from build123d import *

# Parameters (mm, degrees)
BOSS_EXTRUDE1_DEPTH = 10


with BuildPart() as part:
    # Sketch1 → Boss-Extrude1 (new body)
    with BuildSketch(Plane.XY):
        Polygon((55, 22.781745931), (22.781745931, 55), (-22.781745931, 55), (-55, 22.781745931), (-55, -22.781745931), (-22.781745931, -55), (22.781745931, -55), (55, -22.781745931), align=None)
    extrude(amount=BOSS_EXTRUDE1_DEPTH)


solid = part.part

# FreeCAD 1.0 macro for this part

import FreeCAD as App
import Part
import Sketcher
Q = App.Units.Quantity


def add_polygon(sketch, points):
    """Adds a closed chain of lines whose ends are joined by coincident constraints."""
    first, n = sketch.GeometryCount, len(points)
    for a, b in zip(points, points[1:] + points[:1]):
        sketch.addGeometry(Part.LineSegment(App.Vector(*a, 0), App.Vector(*b, 0)), False)
    for i in range(n):
        sketch.addConstraint(Sketcher.Constraint("Coincident", first + i, 2, first + (i + 1) % n, 1))

doc = App.newDocument("Part")
body = doc.addObject("PartDesign::Body", "Body")

sketch1 = doc.addObject("Sketcher::SketchObject", "Sketch")
body.addObject(sketch1)
sketch1.AttachmentSupport = (doc.XY_Plane, [""])
sketch1.MapMode = "FlatFace"
add_polygon(sketch1, [(55, 23), (23, 55), (-23, 55), (-55, 23), (-55, -23), (-23, -55), (23, -55), (55, -23)])
sketch1.addConstraint([
    Sketcher.Constraint("Horizontal", 1),
    Sketcher.Constraint("Vertical", 3),
    Sketcher.Constraint("Horizontal", 5),
    Sketcher.Constraint("Vertical", 7),
    Sketcher.Constraint("Symmetric", 0, 2, 4, 2, -1, 1),
    Sketcher.Constraint("Symmetric", 2, 2, 6, 2, -1, 1),
    Sketcher.Constraint("Perpendicular", 0, 2),
    Sketcher.Constraint("Perpendicular", 2, 4),
    Sketcher.Constraint("Perpendicular", 4, 6),
    Sketcher.Constraint("Horizontal", 3, 2, 6, 2),
    Sketcher.Constraint("Vertical", 1, 2, 4, 2),
    Sketcher.Constraint("Equal", 5, 3),
    Sketcher.Constraint("DistanceY", -1, 1, 0, 2, Q("55 mm")),
    Sketcher.Constraint("DistanceX", 1, 2, 1, 1, Q("45.563492 mm")),
])
pad1 = doc.addObject("PartDesign::Pad", "Pad")
body.addObject(pad1)
pad1.Profile = sketch1
pad1.Length = 10

doc.recompute()
